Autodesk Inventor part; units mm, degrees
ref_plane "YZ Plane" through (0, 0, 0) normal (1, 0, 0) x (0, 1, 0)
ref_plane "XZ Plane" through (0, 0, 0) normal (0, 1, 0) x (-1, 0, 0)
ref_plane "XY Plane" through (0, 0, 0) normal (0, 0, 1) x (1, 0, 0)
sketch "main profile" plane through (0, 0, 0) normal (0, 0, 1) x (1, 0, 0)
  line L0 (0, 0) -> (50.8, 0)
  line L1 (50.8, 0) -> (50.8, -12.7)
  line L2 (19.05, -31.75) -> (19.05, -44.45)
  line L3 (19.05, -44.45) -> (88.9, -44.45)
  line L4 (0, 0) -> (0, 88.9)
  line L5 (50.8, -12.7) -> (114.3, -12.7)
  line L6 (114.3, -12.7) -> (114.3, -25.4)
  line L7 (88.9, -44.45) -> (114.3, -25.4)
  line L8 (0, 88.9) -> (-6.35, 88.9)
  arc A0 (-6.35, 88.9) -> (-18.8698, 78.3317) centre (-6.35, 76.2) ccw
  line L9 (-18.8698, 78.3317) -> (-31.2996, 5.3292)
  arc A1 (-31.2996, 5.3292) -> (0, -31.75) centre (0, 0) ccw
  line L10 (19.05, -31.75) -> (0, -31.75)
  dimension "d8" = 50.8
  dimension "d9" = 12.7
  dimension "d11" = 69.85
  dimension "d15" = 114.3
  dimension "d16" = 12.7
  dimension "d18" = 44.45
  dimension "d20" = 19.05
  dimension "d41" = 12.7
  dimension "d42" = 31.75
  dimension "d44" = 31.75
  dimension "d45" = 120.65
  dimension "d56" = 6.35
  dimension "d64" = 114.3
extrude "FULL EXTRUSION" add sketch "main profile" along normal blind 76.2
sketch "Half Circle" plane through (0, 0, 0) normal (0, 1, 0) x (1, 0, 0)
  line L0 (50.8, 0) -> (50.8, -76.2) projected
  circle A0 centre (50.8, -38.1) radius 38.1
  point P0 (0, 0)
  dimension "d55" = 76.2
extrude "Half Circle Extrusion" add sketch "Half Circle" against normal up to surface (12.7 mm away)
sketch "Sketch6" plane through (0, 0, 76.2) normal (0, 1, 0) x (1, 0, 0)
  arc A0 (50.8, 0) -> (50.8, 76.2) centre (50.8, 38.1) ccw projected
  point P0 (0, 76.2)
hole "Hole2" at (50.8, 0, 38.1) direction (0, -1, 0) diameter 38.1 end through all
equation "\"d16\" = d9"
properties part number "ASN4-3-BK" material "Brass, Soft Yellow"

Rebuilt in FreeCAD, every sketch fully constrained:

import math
import FreeCAD as App
import Part
import Sketcher
Q = App.Units.Quantity

doc = App.newDocument("Part")
body = doc.addObject("PartDesign::Body", "Body")

sketch1 = doc.addObject("Sketcher::SketchObject", "Sketch")
body.addObject(sketch1)
sketch1.AttachmentSupport = (doc.XY_Plane, [""])
sketch1.MapMode = "FlatFace"
sketch1.addGeometry(Part.LineSegment(App.Vector(51, 0, 0), App.Vector(0, 0, 0)), False)
sketch1.addGeometry(Part.LineSegment(App.Vector(0, 0, 0), App.Vector(0, 89, 0)), False)
sketch1.addGeometry(Part.LineSegment(App.Vector(0, 89, 0), App.Vector(-6, 89, 0)), False)
sketch1.addGeometry(Part.ArcOfCircle(Part.Circle(App.Vector(-6, 76, 0), App.Vector(0, 0, 1), 13), math.radians(90), math.radians(170)), False)
sketch1.addGeometry(Part.LineSegment(App.Vector(-19, 78, 0), App.Vector(-31, 5, 0)), False)
sketch1.addGeometry(Part.ArcOfCircle(Part.Circle(App.Vector(0, 0, 0), App.Vector(0, 0, 1), 32), math.radians(170), math.radians(270)), False)
sketch1.addGeometry(Part.LineSegment(App.Vector(0, -32, 0), App.Vector(19, -32, 0)), False)
sketch1.addGeometry(Part.LineSegment(App.Vector(19, -32, 0), App.Vector(19, -44, 0)), False)
sketch1.addGeometry(Part.LineSegment(App.Vector(19, -44, 0), App.Vector(89, -44, 0)), False)
sketch1.addGeometry(Part.LineSegment(App.Vector(89, -44, 0), App.Vector(114, -25, 0)), False)
sketch1.addGeometry(Part.LineSegment(App.Vector(114, -25, 0), App.Vector(114, -13, 0)), False)
sketch1.addGeometry(Part.LineSegment(App.Vector(114, -13, 0), App.Vector(51, -13, 0)), False)
sketch1.addGeometry(Part.LineSegment(App.Vector(51, -13, 0), App.Vector(51, 0, 0)), False)
sketch1.addConstraint(Sketcher.Constraint("Coincident", 0, 2, 1, 1))
sketch1.addConstraint(Sketcher.Constraint("Coincident", 1, 2, 2, 1))
sketch1.addConstraint(Sketcher.Constraint("Tangent", 2, 2, 3, 1))
sketch1.addConstraint(Sketcher.Constraint("Tangent", 3, 2, 4, 1))
sketch1.addConstraint(Sketcher.Constraint("Tangent", 4, 2, 5, 1))
sketch1.addConstraint(Sketcher.Constraint("Tangent", 5, 2, 6, 1))
sketch1.addConstraint(Sketcher.Constraint("Coincident", 6, 2, 7, 1))
sketch1.addConstraint(Sketcher.Constraint("Coincident", 7, 2, 8, 1))
sketch1.addConstraint(Sketcher.Constraint("Coincident", 8, 2, 9, 1))
sketch1.addConstraint(Sketcher.Constraint("Coincident", 9, 2, 10, 1))
sketch1.addConstraint(Sketcher.Constraint("Coincident", 10, 2, 11, 1))
sketch1.addConstraint(Sketcher.Constraint("Coincident", 11, 2, 12, 1))
sketch1.addConstraint(Sketcher.Constraint("Coincident", 12, 2, 0, 1))
sketch1.addConstraint(Sketcher.Constraint("Horizontal", 0))
sketch1.addConstraint(Sketcher.Constraint("Vertical", 1))
sketch1.addConstraint(Sketcher.Constraint("Horizontal", 2))
sketch1.addConstraint(Sketcher.Constraint("Horizontal", 6))
sketch1.addConstraint(Sketcher.Constraint("Vertical", 7))
sketch1.addConstraint(Sketcher.Constraint("Horizontal", 8))
sketch1.addConstraint(Sketcher.Constraint("Vertical", 10))
sketch1.addConstraint(Sketcher.Constraint("Horizontal", 11))
sketch1.addConstraint(Sketcher.Constraint("Vertical", 12))
sketch1.addConstraint(Sketcher.Constraint("Coincident", 5, 3, -1, 1))
sketch1.addConstraint(Sketcher.Constraint("Coincident", 0, 2, -1, 1))
sketch1.addConstraint(Sketcher.Constraint("Equal", 7, 10))
sketch1.addConstraint(Sketcher.Constraint("Equal", 10, 12))
sketch1.addConstraint(Sketcher.Constraint("Radius", 3, Q("0.5 in")))
sketch1.addConstraint(Sketcher.Constraint("DistanceX", 0, 2, 0, 1, Q("2 in")))
sketch1.addConstraint(Sketcher.Constraint("Radius", 5, Q("1.25 in")))
sketch1.addConstraint(Sketcher.Constraint("DistanceY", 7, 2, 7, 1, Q("0.5 in")))
sketch1.addConstraint(Sketcher.Constraint("DistanceX", 2, 2, 2, 1, Q("0.25 in")))
sketch1.addConstraint(Sketcher.Constraint("DistanceX", 6, 1, 6, 2, Q("0.75 in")))
sketch1.addConstraint(Sketcher.Constraint("DistanceX", 8, 1, 8, 2, Q("2.75 in")))
sketch1.addConstraint(Sketcher.Constraint("DistanceX", -1, 1, 9, 2, Q("4.5 in")))
sketch1.addConstraint(Sketcher.Constraint("DistanceY", 1, 1, 1, 2, Q("3.5 in")))
pad1 = doc.addObject("PartDesign::Pad", "Pad")
body.addObject(pad1)
pad1.Profile = sketch1
pad1.Length = Q("3 in")

sketch2 = doc.addObject("Sketcher::SketchObject", "Sketch001")
body.addObject(sketch2)
sketch2.AttachmentSupport = (doc.XZ_Plane, [""])
sketch2.MapMode = "FlatFace"
sketch2.addGeometry(Part.Circle(App.Vector(51, 38, 0), App.Vector(0, 0, 1), 38), False)
sketch2.addConstraint(Sketcher.Constraint("Diameter", 0, Q("3 in")))
sketch2.addConstraint(Sketcher.Constraint("DistanceX", -1, 1, 0, 3, Q("2 in")))
sketch2.addConstraint(Sketcher.Constraint("DistanceY", -1, 1, 0, 3, Q("1.5 in")))
pad2 = doc.addObject("PartDesign::Pad", "Pad001")
body.addObject(pad2)
pad2.Profile = sketch2
pad2.Length = Q("0.5 in")

sketch3 = doc.addObject("Sketcher::SketchObject", "Sketch002")
body.addObject(sketch3)
sketch3.AttachmentSupport = (doc.XZ_Plane, [""])
sketch3.MapMode = "FlatFace"
sketch3.addGeometry(Part.Circle(App.Vector(51, 38, 0), App.Vector(0, 0, 1), 19), False)
sketch3.addConstraint(Sketcher.Constraint("Diameter", 0, Q("1.5 in")))
sketch3.addConstraint(Sketcher.Constraint("DistanceX", -1, 1, 0, 3, Q("2 in")))
sketch3.addConstraint(Sketcher.Constraint("DistanceY", -1, 1, 0, 3, Q("1.5 in")))
doc.recompute()
hole = doc.addObject("PartDesign::Hole", "Hole")
body.addObject(hole)
hole.Profile = sketch3
hole.ThreadType = "None"
hole.Diameter = Q("1.5 in")
hole.DepthType = "ThroughAll"
hole.Reversed = True

doc.recompute()
